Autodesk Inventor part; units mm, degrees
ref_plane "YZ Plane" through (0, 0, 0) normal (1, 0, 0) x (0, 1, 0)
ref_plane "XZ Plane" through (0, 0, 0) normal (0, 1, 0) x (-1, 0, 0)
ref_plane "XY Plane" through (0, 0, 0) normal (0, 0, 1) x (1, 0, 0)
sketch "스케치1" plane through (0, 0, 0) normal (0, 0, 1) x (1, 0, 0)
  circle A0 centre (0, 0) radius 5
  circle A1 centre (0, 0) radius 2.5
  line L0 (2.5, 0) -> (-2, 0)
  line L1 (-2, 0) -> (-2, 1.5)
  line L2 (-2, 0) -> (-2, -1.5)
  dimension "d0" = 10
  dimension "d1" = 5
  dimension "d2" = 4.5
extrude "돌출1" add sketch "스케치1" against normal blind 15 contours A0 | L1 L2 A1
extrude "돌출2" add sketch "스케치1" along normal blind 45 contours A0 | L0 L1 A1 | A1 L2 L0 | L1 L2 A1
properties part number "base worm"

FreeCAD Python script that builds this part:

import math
import FreeCAD as App
import Part
import Sketcher
from FreeCAD import Vector

doc = App.newDocument("Part")
params = doc.addObject("Spreadsheet::Sheet", "Params")
for row, (alias, value) in enumerate([
    ("sketch1_diameter", "10 mm"),
    ("sketch1_radius", "2.5 mm"),
    ("sketch1_height", "3 mm"),
    ("pad1_length", "15 mm"),
    ("sketch2_diameter", "10 mm"),
    ("pad2_length", "45 mm"),
], start=1):
    params.set(f"A{row}", alias)
    params.set(f"B{row}", "=" + value)
    params.setAlias(f"B{row}", alias)

body = doc.addObject("PartDesign::Body", "Body")

# Sketch on XY plane
sketch1 = body.newObject("Sketcher::SketchObject", "Sketch")
sketch1.AttachmentSupport = (doc.getObject("XY_Plane"), [""])
sketch1.MapMode = "FlatFace"
sketch1.addGeometry(Part.Circle(Vector(0, 0, 0), Vector(0, 0, 1), 5), False)
sketch1.addGeometry(Part.ArcOfCircle(Part.Circle(Vector(0, 0, 0), Vector(0, 0, 1), 2.5), math.radians(-143), math.radians(143)), False)
sketch1.addGeometry(Part.LineSegment(Vector(-2, -1.5, 0), Vector(-2, 1.5, 0)), False)
sketch1.addConstraint(Sketcher.Constraint("Coincident", 1, 1, 2, 1))
sketch1.addConstraint(Sketcher.Constraint("Coincident", 2, 2, 1, 2))
sketch1.addConstraint(Sketcher.Constraint("Vertical", 2))
sketch1.addConstraint(Sketcher.Constraint("Coincident", 0, 3, -1, 1))
sketch1.addConstraint(Sketcher.Constraint("Coincident", 1, 3, -1, 1))
sketch1.addConstraint(Sketcher.Constraint("Diameter", 0, 10.0))
sketch1.addConstraint(Sketcher.Constraint("Radius", 1, 2.5))
sketch1.addConstraint(Sketcher.Constraint("DistanceY", 2, 1, 2, 2, 3.0))
sketch1.setExpression("Constraints[5]", "Params.sketch1_diameter")
sketch1.setExpression("Constraints[6]", "Params.sketch1_radius")
sketch1.setExpression("Constraints[7]", "Params.sketch1_height")
pad1 = body.newObject("PartDesign::Pad", "Pad")
pad1.Profile = sketch1
pad1.setExpression("Length", "Params.pad1_length")
pad1.Reversed = True

# Sketch on XY plane
sketch2 = body.newObject("Sketcher::SketchObject", "Sketch001")
sketch2.AttachmentSupport = (doc.getObject("XY_Plane"), [""])
sketch2.MapMode = "FlatFace"
sketch2.addGeometry(Part.Circle(Vector(0, 0, 0), Vector(0, 0, 1), 5), False)
sketch2.addConstraint(Sketcher.Constraint("Coincident", 0, 3, -1, 1))
sketch2.addConstraint(Sketcher.Constraint("Diameter", 0, 10.0))
sketch2.setExpression("Constraints[1]", "Params.sketch2_diameter")
pad2 = body.newObject("PartDesign::Pad", "Pad001")
pad2.Profile = sketch2
pad2.setExpression("Length", "Params.pad2_length")

doc.recompute()
